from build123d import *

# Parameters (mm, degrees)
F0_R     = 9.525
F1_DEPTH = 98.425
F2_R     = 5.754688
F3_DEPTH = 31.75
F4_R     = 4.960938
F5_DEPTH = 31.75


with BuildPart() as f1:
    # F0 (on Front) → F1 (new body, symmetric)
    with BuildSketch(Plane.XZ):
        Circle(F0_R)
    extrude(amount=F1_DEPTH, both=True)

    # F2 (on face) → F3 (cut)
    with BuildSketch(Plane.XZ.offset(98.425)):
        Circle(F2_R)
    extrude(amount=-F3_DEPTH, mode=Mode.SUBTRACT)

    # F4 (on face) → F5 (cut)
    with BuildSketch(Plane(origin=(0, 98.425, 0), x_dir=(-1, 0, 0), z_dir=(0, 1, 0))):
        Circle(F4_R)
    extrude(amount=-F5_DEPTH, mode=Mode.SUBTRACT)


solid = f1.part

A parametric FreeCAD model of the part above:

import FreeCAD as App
import Part
import Sketcher
Q = App.Units.Quantity

doc = App.newDocument("Part")
body = doc.addObject("PartDesign::Body", "Body")

sketch1 = body.newObject("Sketcher::SketchObject", "Sketch")
sketch1.AttachmentSupport = (doc.getObject("XZ_Plane"), [""])
sketch1.MapMode = "FlatFace"
sketch1.addGeometry(Part.Circle(App.Vector(0, 0, 0), App.Vector(0, 0, 1), 9.525), False)
sketch1.addConstraint([
    Sketcher.Constraint("Coincident", 0, 3, -1, 1),
    Sketcher.Constraint("Diameter", 0, Q("0.75 in")),
])
pad1 = body.newObject("PartDesign::Pad", "Pad")
pad1.Profile = sketch1
pad1.Length = Q("7.75 in")
pad1.Midplane = True

sketch2 = body.newObject("Sketcher::SketchObject", "Sketch001")
sketch2.AttachmentSupport = (doc.getObject("XZ_Plane"), [""])
sketch2.MapMode = "FlatFace"
sketch2.AttachmentOffset = App.Placement(App.Vector(0, 0, 3.875 * 25.4), App.Rotation())
sketch2.addGeometry(Part.Circle(App.Vector(0, 0, 0), App.Vector(0, 0, 1), 5.754688), False)
sketch2.addConstraint([
    Sketcher.Constraint("Coincident", 0, 3, -1, 1),
    Sketcher.Constraint("Diameter", 0, Q("0.453125 in")),
])
pocket1 = body.newObject("PartDesign::Pocket", "Pocket")
pocket1.Profile = sketch2
pocket1.Length = Q("1.25 in")

sketch3 = body.newObject("Sketcher::SketchObject", "Sketch002")
sketch3.AttachmentSupport = (doc.getObject("XZ_Plane"), [""])
sketch3.MapMode = "FlatFace"
sketch3.AttachmentOffset = App.Placement(App.Vector(0, 0, -3.875 * 25.4), App.Rotation())
sketch3.addGeometry(Part.Circle(App.Vector(0, 0, 0), App.Vector(0, 0, 1), 4.960938), False)
sketch3.addConstraint([
    Sketcher.Constraint("Coincident", 0, 3, -1, 1),
    Sketcher.Constraint("Diameter", 0, Q("0.390625 in")),
])
pocket2 = body.newObject("PartDesign::Pocket", "Pocket001")
pocket2.Profile = sketch3
pocket2.Length = Q("1.25 in")
pocket2.Reversed = True

doc.recompute()
